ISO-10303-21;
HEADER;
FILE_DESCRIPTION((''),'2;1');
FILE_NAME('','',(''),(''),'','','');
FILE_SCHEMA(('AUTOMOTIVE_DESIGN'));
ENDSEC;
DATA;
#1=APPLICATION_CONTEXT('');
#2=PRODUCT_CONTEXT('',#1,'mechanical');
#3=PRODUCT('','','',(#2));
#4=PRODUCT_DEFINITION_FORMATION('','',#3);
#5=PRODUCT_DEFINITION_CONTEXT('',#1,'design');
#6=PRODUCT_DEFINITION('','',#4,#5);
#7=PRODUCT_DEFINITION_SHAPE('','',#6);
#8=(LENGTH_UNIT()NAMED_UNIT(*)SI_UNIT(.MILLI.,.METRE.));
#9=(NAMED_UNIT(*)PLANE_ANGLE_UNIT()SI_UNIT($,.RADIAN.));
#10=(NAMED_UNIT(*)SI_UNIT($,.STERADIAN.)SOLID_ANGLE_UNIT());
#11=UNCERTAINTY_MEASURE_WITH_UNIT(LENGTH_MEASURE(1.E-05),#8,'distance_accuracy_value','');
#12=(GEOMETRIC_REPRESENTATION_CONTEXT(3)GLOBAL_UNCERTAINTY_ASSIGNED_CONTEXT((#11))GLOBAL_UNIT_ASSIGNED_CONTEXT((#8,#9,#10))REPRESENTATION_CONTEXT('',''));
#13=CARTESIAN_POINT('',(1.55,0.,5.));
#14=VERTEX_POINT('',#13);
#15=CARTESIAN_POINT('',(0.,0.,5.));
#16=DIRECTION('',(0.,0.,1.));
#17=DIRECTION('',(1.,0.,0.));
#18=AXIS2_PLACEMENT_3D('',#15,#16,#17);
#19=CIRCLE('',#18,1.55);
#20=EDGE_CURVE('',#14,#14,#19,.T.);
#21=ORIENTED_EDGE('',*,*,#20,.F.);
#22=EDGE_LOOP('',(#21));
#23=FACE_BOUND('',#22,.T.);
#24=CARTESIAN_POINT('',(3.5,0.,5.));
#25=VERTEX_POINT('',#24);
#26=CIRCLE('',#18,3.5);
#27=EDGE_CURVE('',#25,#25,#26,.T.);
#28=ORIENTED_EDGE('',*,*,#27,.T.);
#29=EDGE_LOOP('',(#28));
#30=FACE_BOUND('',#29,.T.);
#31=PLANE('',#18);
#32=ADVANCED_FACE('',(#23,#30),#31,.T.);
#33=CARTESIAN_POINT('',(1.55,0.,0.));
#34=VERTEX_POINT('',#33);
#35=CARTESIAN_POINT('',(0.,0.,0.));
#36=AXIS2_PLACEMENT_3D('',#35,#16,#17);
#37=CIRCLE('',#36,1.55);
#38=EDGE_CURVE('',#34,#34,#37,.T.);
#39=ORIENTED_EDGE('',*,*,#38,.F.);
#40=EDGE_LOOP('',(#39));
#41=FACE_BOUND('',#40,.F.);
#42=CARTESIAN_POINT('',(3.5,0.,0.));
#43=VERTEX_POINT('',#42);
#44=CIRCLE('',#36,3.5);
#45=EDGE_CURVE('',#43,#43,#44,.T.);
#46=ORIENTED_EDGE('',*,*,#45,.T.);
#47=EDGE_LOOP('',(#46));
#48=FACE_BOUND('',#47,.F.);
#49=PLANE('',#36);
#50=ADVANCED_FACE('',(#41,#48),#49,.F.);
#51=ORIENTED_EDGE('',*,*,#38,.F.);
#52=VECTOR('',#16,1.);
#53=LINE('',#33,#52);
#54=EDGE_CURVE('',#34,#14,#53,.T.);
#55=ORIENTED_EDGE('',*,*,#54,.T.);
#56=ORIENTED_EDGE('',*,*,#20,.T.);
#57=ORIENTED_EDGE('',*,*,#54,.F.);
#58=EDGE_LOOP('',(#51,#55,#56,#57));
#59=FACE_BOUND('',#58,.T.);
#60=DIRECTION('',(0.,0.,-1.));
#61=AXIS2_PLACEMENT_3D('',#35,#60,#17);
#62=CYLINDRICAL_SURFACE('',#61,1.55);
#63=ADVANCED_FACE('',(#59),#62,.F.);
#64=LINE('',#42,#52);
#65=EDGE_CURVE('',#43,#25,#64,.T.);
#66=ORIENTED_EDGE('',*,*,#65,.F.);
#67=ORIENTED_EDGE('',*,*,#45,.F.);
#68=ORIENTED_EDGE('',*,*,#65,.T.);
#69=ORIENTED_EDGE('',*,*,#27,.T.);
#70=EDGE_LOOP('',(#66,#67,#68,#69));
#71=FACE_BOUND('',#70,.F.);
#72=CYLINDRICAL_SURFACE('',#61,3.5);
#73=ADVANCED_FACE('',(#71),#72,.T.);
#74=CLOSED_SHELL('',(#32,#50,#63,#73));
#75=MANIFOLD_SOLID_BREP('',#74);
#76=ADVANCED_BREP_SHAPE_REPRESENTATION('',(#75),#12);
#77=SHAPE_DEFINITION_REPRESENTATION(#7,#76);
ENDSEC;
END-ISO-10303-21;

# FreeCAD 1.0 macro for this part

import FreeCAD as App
import Part
import Sketcher

V = App.Vector

doc = App.newDocument("Part")
body = doc.addObject("PartDesign::Body", "Body")

# Sketch on XY plane
sketch1 = body.newObject("Sketcher::SketchObject", "Sketch")
sketch1.AttachmentSupport = (doc.getObject("XY_Plane"), [""])
sketch1.MapMode = "FlatFace"
sketch1.addGeometry([
    Part.Circle(V(0, 0, 0), V(0, 0, 1), 3.5),
    Part.Circle(V(0, 0, 0), V(0, 0, 1), 1.55),
], False)
sketch1.addConstraint([
    Sketcher.Constraint("Coincident", 0, 3, -1, 1),
    Sketcher.Constraint("Coincident", 1, 3, -1, 1),
    Sketcher.Constraint("Diameter", 0, 7.0),
    Sketcher.Constraint("Diameter", 1, 3.1),
])
pad1 = body.newObject("PartDesign::Pad", "Pad")
pad1.Profile = sketch1
pad1.Length = 5

doc.recompute()
